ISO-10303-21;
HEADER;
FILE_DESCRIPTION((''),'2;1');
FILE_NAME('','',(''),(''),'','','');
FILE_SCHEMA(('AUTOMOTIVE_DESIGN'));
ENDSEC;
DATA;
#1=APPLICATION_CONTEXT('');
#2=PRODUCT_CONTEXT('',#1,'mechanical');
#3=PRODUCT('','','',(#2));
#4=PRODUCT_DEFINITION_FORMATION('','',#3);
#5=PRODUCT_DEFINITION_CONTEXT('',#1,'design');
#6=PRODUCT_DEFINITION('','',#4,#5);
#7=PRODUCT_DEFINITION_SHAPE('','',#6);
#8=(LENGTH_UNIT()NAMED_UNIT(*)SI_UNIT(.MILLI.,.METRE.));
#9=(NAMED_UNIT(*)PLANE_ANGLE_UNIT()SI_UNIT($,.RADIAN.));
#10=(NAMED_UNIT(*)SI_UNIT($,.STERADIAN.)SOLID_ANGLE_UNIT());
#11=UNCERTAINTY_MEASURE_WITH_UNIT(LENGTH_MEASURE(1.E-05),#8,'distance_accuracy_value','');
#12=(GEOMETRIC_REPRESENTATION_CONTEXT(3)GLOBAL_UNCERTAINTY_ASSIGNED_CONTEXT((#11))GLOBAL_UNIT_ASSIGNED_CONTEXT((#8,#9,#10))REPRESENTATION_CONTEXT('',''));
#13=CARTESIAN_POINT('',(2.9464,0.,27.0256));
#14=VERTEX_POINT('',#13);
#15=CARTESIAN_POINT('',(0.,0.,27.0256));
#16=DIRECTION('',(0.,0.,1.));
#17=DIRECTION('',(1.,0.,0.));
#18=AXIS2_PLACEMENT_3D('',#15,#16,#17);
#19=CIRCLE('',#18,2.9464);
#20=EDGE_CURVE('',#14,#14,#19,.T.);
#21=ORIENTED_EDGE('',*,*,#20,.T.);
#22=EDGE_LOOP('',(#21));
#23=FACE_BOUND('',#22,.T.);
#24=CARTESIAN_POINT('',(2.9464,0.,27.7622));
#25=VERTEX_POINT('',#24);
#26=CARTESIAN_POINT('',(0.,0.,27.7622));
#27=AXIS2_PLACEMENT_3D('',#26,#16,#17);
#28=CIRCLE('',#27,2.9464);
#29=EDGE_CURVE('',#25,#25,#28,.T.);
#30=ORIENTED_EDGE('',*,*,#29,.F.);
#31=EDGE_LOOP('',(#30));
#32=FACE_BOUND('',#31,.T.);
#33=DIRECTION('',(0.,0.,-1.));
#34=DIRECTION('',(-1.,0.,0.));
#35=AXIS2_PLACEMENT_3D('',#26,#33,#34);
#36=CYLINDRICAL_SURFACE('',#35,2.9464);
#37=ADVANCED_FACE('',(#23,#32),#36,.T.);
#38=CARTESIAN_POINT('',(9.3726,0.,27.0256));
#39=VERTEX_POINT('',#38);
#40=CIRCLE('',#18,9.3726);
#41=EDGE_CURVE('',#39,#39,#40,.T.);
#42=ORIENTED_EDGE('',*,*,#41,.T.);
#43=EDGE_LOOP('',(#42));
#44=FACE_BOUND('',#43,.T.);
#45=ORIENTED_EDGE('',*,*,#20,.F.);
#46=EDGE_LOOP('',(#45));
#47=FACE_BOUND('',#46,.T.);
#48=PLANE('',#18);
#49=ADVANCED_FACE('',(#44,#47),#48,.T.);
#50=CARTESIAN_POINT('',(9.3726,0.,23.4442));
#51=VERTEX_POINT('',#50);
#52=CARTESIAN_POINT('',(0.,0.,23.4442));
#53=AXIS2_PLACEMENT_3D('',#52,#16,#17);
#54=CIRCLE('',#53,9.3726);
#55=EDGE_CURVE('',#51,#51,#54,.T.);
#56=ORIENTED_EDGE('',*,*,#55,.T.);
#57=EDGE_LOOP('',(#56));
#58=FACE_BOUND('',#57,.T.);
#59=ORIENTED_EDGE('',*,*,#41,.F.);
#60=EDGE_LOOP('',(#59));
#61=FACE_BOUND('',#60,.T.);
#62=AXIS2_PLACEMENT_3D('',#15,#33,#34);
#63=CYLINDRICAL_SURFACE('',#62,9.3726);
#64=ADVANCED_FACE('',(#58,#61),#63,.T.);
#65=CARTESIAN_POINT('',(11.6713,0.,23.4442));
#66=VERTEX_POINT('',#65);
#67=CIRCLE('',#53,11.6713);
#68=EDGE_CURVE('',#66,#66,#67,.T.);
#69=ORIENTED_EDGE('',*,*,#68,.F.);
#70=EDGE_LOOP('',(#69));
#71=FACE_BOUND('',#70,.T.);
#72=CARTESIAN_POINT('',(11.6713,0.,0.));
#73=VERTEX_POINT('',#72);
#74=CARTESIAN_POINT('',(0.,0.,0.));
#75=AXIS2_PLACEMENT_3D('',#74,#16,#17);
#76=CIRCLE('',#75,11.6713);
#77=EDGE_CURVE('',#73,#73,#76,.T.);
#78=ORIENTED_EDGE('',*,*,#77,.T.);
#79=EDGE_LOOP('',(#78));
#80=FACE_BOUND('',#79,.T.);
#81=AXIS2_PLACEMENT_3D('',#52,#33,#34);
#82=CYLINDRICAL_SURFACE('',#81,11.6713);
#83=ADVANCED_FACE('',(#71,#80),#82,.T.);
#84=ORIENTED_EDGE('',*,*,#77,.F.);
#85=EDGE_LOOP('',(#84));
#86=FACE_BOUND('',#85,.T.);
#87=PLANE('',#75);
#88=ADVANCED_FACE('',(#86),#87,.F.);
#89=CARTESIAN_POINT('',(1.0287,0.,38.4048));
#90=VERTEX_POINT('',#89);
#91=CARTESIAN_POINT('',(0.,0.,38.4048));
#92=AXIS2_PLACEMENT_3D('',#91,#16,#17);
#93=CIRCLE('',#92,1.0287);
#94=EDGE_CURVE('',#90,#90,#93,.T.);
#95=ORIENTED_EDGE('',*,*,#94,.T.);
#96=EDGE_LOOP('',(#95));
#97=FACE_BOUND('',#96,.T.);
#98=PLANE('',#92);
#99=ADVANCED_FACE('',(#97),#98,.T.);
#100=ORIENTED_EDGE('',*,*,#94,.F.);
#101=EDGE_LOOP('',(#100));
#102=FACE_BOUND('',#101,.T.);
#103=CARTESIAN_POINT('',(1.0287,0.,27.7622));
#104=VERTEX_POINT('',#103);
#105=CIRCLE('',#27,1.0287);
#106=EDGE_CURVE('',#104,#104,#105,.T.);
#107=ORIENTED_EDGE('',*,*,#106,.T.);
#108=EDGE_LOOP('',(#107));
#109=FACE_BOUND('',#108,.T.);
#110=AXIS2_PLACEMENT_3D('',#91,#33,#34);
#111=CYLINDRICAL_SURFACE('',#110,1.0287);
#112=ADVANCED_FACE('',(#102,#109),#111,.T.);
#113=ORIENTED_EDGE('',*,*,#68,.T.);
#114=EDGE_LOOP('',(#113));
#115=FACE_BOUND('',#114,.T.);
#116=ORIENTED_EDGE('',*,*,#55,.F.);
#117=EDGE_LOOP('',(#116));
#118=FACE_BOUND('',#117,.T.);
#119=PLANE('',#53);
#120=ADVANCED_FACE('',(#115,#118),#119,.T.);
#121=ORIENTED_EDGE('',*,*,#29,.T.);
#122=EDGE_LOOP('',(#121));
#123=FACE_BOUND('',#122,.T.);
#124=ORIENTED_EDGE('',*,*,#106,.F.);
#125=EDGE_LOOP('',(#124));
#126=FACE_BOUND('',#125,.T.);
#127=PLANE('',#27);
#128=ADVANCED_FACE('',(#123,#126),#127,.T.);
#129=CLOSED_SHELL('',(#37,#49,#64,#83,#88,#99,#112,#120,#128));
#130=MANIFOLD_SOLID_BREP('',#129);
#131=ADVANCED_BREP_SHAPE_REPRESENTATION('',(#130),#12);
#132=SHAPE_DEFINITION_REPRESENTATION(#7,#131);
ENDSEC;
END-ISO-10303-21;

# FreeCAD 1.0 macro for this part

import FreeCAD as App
import Part
import Sketcher

V = App.Vector
Q = App.Units.Quantity

doc = App.newDocument("Part")
body = doc.addObject("PartDesign::Body", "Body")

sketch1 = body.newObject("Sketcher::SketchObject", "Sketch")
sketch1.AttachmentSupport = (doc.getObject("XY_Plane"), [""])
sketch1.MapMode = "FlatFace"
sketch1.addGeometry(Part.Circle(V(0, 0, 0), V(0, 0, 1), 12), False)
sketch1.addConstraint(Sketcher.Constraint("Coincident", 0, 3, -1, 1))
sketch1.addConstraint(Sketcher.Constraint("Diameter", 0, Q("0.919 in")))
pad1 = body.newObject("PartDesign::Pad", "Pad")
pad1.Profile = sketch1
pad1.Length = Q("0.923 in")

sketch2 = body.newObject("Sketcher::SketchObject", "Sketch001")
sketch2.AttachmentSupport = (doc.getObject("XY_Plane"), [""])
sketch2.MapMode = "FlatFace"
sketch2.AttachmentOffset = App.Placement(V(0, 0, 0.923 * 25.4), App.Rotation())
sketch2.addGeometry(Part.Circle(V(0, 0, 0), V(0, 0, 1), 9), False)
sketch2.addConstraint(Sketcher.Constraint("Coincident", 0, 3, -1, 1))
sketch2.addConstraint(Sketcher.Constraint("Diameter", 0, Q("0.738 in")))
pad2 = body.newObject("PartDesign::Pad", "Pad001")
pad2.Profile = sketch2
pad2.Length = Q("0.141 in")

sketch3 = body.newObject("Sketcher::SketchObject", "Sketch002")
sketch3.AttachmentSupport = (doc.getObject("XY_Plane"), [""])
sketch3.MapMode = "FlatFace"
sketch3.AttachmentOffset = App.Placement(V(0, 0, 1.064 * 25.4), App.Rotation())
sketch3.addGeometry(Part.Circle(V(0, 0, 0), V(0, 0, 1), 2.9), False)
sketch3.addConstraint(Sketcher.Constraint("Coincident", 0, 3, -1, 1))
sketch3.addConstraint(Sketcher.Constraint("Diameter", 0, Q("0.232 in")))
pad3 = body.newObject("PartDesign::Pad", "Pad002")
pad3.Profile = sketch3
pad3.Length = Q("0.029 in")

sketch4 = body.newObject("Sketcher::SketchObject", "Sketch003")
sketch4.AttachmentSupport = (doc.getObject("XY_Plane"), [""])
sketch4.MapMode = "FlatFace"
sketch4.AttachmentOffset = App.Placement(V(0, 0, 1.093 * 25.4), App.Rotation())
sketch4.addGeometry(Part.Circle(V(0, 0, 0), V(0, 0, 1), 1), False)
sketch4.addConstraint(Sketcher.Constraint("Coincident", 0, 3, -1, 1))
sketch4.addConstraint(Sketcher.Constraint("Diameter", 0, Q("0.081 in")))
pad4 = body.newObject("PartDesign::Pad", "Pad003")
pad4.Profile = sketch4
pad4.Length = Q("0.419 in")

doc.recompute()
